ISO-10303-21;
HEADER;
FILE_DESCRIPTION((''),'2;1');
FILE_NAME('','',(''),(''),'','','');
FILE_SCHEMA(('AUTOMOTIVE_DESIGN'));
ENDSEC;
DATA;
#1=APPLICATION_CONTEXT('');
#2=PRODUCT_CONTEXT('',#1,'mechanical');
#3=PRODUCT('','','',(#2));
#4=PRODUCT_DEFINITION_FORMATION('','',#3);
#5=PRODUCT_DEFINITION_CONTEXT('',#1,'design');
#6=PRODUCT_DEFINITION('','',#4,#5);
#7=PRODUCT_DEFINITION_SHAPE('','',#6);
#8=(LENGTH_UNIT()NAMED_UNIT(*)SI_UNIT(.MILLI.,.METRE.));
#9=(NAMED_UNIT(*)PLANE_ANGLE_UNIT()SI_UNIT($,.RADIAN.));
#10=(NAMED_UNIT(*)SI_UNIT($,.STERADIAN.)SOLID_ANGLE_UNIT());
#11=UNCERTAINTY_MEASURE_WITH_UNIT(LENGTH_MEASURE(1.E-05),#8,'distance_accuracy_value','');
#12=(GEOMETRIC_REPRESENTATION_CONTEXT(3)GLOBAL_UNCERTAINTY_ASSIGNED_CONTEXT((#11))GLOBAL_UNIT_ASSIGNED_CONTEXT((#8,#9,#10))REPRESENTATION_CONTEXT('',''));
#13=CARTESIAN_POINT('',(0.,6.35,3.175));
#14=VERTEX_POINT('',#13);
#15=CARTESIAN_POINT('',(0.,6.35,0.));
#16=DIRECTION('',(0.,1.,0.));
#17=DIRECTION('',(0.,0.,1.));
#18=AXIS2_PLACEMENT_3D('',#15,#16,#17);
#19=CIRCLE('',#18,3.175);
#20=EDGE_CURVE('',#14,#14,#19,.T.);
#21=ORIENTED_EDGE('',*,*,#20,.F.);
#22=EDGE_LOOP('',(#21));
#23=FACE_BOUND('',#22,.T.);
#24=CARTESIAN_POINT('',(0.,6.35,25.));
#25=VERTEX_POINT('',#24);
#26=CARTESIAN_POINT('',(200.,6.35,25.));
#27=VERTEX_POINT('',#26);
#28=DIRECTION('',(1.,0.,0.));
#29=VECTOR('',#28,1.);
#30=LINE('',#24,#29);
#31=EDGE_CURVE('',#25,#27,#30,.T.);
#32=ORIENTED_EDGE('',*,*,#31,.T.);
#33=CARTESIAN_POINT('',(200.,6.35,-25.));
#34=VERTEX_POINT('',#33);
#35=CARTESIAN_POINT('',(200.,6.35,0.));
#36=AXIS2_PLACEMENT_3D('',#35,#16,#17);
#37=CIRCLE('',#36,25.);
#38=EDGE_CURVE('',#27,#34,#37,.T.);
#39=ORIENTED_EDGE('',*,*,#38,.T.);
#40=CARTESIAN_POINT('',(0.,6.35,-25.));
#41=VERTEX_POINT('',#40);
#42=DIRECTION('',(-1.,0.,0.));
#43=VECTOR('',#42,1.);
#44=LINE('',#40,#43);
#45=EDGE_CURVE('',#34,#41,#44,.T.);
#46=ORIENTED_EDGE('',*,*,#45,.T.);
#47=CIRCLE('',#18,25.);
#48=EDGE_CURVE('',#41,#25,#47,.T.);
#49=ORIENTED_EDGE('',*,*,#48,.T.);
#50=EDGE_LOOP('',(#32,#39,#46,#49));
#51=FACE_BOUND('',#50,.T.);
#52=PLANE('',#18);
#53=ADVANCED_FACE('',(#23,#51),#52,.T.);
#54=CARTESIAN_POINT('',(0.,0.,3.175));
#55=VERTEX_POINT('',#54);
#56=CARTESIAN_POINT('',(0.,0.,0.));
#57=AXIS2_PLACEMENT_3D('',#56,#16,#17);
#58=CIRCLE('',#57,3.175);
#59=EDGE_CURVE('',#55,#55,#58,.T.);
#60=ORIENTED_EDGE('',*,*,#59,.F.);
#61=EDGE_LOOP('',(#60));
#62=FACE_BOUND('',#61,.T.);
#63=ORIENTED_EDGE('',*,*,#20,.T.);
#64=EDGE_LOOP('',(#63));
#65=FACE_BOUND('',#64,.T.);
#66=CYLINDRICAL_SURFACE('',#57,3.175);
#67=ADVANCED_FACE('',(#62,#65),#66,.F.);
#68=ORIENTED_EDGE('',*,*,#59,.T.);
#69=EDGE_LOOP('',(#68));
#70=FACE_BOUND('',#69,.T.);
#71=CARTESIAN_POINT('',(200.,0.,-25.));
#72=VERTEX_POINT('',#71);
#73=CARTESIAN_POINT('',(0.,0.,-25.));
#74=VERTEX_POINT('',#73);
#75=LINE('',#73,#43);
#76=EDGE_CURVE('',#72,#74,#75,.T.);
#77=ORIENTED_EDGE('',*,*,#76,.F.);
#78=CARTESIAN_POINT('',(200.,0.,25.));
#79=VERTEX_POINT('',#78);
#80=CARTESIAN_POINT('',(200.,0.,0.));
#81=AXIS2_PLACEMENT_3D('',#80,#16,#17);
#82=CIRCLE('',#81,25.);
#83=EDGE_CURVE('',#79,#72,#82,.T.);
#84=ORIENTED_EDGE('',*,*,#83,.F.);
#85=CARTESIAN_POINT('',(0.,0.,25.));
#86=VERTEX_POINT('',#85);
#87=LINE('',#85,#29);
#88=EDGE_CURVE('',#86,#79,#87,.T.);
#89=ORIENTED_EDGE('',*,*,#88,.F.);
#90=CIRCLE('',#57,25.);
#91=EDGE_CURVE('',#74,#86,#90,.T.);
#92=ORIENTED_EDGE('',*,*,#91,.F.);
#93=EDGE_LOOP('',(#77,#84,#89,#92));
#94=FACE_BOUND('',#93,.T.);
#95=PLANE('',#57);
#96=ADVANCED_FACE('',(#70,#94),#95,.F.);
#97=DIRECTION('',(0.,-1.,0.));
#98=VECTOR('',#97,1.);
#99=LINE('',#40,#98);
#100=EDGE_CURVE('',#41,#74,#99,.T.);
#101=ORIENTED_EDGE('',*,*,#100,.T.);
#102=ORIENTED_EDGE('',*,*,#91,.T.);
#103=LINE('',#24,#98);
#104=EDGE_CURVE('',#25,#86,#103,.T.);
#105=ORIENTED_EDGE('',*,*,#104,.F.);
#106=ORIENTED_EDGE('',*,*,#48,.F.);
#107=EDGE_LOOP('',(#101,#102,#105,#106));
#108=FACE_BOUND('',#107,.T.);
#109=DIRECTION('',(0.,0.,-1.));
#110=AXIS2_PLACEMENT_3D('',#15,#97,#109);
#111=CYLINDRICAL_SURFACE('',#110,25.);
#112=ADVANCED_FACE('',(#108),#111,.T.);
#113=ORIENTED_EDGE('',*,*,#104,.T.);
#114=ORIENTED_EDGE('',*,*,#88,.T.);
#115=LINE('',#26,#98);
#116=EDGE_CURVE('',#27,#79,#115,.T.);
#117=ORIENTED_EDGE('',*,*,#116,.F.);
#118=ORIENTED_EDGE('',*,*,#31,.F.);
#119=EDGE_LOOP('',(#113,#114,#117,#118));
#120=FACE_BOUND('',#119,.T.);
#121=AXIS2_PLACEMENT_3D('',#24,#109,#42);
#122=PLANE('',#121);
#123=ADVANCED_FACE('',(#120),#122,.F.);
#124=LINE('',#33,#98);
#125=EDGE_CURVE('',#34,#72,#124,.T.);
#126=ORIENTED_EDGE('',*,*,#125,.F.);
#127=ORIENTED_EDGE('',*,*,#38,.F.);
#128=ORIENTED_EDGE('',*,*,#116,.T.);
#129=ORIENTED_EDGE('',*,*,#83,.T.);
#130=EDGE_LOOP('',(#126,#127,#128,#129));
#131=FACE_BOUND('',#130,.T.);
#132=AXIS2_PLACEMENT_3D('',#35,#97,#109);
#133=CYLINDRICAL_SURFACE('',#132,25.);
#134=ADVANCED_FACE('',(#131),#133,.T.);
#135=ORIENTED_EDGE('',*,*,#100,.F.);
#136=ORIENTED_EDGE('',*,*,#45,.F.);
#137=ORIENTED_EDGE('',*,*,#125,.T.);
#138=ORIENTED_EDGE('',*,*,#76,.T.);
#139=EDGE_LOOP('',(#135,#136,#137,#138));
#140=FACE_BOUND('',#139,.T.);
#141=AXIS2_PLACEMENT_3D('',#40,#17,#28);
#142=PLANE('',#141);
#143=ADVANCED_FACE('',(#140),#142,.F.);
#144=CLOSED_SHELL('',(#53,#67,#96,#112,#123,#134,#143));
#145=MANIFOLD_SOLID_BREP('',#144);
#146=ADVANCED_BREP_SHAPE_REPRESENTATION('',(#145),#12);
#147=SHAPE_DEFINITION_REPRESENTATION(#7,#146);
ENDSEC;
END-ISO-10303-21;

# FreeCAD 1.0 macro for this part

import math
import FreeCAD as App
import Part
import Sketcher

doc = App.newDocument("Part")
body = doc.addObject("PartDesign::Body", "Body")

# Sketch on XZ plane
sketch1 = body.newObject("Sketcher::SketchObject", "Sketch")
sketch1.AttachmentSupport = (doc.getObject("XZ_Plane"), [""])
sketch1.MapMode = "FlatFace"
sketch1.addGeometry([
    Part.LineSegment(App.Vector(200, -25, 0), App.Vector(0, -25, 0)),
    Part.ArcOfCircle(Part.Circle(App.Vector(0, 0, 0), App.Vector(0, 0, 1), 25), math.radians(90), math.radians(270)),
    Part.LineSegment(App.Vector(0, 25, 0), App.Vector(200, 25, 0)),
    Part.ArcOfCircle(Part.Circle(App.Vector(200, 0, 0), App.Vector(0, 0, 1), 25), math.radians(-90), math.radians(90)),
], False)
sketch1.addConstraint([
    Sketcher.Constraint("Tangent", 0, 2, 1, 2),
    Sketcher.Constraint("Tangent", 1, 1, 2, 1),
    Sketcher.Constraint("Tangent", 2, 2, 3, 2),
    Sketcher.Constraint("Tangent", 3, 1, 0, 1),
    Sketcher.Constraint("Horizontal", 0),
    Sketcher.Constraint("Horizontal", 2),
    Sketcher.Constraint("Coincident", 1, 3, -1, 1),
    Sketcher.Constraint("Radius", 1, 25.0),
    Sketcher.Constraint("DistanceX", 0, 2, 0, 1, 200.0),
])
pad1 = body.newObject("PartDesign::Pad", "Pad")
pad1.Profile = sketch1
pad1.Length = 6.35
pad1.Reversed = True

# Sketch on XZ plane
sketch2 = body.newObject("Sketcher::SketchObject", "Sketch001")
sketch2.AttachmentSupport = (doc.getObject("XZ_Plane"), [""])
sketch2.MapMode = "FlatFace"
sketch2.AttachmentOffset = App.Placement(App.Vector(0, 0, -6.35), App.Rotation())
sketch2.addGeometry(Part.Circle(App.Vector(0, 0, 0), App.Vector(0, 0, 1), 3.2), False)
sketch2.addConstraint([
    Sketcher.Constraint("Coincident", 0, 3, -1, 1),
    Sketcher.Constraint("Diameter", 0, 6.35),
])
pocket1 = body.newObject("PartDesign::Pocket", "Pocket")
pocket1.Profile = sketch2
pocket1.Type = "ThroughAll"
pocket1.Reversed = True

doc.recompute()
